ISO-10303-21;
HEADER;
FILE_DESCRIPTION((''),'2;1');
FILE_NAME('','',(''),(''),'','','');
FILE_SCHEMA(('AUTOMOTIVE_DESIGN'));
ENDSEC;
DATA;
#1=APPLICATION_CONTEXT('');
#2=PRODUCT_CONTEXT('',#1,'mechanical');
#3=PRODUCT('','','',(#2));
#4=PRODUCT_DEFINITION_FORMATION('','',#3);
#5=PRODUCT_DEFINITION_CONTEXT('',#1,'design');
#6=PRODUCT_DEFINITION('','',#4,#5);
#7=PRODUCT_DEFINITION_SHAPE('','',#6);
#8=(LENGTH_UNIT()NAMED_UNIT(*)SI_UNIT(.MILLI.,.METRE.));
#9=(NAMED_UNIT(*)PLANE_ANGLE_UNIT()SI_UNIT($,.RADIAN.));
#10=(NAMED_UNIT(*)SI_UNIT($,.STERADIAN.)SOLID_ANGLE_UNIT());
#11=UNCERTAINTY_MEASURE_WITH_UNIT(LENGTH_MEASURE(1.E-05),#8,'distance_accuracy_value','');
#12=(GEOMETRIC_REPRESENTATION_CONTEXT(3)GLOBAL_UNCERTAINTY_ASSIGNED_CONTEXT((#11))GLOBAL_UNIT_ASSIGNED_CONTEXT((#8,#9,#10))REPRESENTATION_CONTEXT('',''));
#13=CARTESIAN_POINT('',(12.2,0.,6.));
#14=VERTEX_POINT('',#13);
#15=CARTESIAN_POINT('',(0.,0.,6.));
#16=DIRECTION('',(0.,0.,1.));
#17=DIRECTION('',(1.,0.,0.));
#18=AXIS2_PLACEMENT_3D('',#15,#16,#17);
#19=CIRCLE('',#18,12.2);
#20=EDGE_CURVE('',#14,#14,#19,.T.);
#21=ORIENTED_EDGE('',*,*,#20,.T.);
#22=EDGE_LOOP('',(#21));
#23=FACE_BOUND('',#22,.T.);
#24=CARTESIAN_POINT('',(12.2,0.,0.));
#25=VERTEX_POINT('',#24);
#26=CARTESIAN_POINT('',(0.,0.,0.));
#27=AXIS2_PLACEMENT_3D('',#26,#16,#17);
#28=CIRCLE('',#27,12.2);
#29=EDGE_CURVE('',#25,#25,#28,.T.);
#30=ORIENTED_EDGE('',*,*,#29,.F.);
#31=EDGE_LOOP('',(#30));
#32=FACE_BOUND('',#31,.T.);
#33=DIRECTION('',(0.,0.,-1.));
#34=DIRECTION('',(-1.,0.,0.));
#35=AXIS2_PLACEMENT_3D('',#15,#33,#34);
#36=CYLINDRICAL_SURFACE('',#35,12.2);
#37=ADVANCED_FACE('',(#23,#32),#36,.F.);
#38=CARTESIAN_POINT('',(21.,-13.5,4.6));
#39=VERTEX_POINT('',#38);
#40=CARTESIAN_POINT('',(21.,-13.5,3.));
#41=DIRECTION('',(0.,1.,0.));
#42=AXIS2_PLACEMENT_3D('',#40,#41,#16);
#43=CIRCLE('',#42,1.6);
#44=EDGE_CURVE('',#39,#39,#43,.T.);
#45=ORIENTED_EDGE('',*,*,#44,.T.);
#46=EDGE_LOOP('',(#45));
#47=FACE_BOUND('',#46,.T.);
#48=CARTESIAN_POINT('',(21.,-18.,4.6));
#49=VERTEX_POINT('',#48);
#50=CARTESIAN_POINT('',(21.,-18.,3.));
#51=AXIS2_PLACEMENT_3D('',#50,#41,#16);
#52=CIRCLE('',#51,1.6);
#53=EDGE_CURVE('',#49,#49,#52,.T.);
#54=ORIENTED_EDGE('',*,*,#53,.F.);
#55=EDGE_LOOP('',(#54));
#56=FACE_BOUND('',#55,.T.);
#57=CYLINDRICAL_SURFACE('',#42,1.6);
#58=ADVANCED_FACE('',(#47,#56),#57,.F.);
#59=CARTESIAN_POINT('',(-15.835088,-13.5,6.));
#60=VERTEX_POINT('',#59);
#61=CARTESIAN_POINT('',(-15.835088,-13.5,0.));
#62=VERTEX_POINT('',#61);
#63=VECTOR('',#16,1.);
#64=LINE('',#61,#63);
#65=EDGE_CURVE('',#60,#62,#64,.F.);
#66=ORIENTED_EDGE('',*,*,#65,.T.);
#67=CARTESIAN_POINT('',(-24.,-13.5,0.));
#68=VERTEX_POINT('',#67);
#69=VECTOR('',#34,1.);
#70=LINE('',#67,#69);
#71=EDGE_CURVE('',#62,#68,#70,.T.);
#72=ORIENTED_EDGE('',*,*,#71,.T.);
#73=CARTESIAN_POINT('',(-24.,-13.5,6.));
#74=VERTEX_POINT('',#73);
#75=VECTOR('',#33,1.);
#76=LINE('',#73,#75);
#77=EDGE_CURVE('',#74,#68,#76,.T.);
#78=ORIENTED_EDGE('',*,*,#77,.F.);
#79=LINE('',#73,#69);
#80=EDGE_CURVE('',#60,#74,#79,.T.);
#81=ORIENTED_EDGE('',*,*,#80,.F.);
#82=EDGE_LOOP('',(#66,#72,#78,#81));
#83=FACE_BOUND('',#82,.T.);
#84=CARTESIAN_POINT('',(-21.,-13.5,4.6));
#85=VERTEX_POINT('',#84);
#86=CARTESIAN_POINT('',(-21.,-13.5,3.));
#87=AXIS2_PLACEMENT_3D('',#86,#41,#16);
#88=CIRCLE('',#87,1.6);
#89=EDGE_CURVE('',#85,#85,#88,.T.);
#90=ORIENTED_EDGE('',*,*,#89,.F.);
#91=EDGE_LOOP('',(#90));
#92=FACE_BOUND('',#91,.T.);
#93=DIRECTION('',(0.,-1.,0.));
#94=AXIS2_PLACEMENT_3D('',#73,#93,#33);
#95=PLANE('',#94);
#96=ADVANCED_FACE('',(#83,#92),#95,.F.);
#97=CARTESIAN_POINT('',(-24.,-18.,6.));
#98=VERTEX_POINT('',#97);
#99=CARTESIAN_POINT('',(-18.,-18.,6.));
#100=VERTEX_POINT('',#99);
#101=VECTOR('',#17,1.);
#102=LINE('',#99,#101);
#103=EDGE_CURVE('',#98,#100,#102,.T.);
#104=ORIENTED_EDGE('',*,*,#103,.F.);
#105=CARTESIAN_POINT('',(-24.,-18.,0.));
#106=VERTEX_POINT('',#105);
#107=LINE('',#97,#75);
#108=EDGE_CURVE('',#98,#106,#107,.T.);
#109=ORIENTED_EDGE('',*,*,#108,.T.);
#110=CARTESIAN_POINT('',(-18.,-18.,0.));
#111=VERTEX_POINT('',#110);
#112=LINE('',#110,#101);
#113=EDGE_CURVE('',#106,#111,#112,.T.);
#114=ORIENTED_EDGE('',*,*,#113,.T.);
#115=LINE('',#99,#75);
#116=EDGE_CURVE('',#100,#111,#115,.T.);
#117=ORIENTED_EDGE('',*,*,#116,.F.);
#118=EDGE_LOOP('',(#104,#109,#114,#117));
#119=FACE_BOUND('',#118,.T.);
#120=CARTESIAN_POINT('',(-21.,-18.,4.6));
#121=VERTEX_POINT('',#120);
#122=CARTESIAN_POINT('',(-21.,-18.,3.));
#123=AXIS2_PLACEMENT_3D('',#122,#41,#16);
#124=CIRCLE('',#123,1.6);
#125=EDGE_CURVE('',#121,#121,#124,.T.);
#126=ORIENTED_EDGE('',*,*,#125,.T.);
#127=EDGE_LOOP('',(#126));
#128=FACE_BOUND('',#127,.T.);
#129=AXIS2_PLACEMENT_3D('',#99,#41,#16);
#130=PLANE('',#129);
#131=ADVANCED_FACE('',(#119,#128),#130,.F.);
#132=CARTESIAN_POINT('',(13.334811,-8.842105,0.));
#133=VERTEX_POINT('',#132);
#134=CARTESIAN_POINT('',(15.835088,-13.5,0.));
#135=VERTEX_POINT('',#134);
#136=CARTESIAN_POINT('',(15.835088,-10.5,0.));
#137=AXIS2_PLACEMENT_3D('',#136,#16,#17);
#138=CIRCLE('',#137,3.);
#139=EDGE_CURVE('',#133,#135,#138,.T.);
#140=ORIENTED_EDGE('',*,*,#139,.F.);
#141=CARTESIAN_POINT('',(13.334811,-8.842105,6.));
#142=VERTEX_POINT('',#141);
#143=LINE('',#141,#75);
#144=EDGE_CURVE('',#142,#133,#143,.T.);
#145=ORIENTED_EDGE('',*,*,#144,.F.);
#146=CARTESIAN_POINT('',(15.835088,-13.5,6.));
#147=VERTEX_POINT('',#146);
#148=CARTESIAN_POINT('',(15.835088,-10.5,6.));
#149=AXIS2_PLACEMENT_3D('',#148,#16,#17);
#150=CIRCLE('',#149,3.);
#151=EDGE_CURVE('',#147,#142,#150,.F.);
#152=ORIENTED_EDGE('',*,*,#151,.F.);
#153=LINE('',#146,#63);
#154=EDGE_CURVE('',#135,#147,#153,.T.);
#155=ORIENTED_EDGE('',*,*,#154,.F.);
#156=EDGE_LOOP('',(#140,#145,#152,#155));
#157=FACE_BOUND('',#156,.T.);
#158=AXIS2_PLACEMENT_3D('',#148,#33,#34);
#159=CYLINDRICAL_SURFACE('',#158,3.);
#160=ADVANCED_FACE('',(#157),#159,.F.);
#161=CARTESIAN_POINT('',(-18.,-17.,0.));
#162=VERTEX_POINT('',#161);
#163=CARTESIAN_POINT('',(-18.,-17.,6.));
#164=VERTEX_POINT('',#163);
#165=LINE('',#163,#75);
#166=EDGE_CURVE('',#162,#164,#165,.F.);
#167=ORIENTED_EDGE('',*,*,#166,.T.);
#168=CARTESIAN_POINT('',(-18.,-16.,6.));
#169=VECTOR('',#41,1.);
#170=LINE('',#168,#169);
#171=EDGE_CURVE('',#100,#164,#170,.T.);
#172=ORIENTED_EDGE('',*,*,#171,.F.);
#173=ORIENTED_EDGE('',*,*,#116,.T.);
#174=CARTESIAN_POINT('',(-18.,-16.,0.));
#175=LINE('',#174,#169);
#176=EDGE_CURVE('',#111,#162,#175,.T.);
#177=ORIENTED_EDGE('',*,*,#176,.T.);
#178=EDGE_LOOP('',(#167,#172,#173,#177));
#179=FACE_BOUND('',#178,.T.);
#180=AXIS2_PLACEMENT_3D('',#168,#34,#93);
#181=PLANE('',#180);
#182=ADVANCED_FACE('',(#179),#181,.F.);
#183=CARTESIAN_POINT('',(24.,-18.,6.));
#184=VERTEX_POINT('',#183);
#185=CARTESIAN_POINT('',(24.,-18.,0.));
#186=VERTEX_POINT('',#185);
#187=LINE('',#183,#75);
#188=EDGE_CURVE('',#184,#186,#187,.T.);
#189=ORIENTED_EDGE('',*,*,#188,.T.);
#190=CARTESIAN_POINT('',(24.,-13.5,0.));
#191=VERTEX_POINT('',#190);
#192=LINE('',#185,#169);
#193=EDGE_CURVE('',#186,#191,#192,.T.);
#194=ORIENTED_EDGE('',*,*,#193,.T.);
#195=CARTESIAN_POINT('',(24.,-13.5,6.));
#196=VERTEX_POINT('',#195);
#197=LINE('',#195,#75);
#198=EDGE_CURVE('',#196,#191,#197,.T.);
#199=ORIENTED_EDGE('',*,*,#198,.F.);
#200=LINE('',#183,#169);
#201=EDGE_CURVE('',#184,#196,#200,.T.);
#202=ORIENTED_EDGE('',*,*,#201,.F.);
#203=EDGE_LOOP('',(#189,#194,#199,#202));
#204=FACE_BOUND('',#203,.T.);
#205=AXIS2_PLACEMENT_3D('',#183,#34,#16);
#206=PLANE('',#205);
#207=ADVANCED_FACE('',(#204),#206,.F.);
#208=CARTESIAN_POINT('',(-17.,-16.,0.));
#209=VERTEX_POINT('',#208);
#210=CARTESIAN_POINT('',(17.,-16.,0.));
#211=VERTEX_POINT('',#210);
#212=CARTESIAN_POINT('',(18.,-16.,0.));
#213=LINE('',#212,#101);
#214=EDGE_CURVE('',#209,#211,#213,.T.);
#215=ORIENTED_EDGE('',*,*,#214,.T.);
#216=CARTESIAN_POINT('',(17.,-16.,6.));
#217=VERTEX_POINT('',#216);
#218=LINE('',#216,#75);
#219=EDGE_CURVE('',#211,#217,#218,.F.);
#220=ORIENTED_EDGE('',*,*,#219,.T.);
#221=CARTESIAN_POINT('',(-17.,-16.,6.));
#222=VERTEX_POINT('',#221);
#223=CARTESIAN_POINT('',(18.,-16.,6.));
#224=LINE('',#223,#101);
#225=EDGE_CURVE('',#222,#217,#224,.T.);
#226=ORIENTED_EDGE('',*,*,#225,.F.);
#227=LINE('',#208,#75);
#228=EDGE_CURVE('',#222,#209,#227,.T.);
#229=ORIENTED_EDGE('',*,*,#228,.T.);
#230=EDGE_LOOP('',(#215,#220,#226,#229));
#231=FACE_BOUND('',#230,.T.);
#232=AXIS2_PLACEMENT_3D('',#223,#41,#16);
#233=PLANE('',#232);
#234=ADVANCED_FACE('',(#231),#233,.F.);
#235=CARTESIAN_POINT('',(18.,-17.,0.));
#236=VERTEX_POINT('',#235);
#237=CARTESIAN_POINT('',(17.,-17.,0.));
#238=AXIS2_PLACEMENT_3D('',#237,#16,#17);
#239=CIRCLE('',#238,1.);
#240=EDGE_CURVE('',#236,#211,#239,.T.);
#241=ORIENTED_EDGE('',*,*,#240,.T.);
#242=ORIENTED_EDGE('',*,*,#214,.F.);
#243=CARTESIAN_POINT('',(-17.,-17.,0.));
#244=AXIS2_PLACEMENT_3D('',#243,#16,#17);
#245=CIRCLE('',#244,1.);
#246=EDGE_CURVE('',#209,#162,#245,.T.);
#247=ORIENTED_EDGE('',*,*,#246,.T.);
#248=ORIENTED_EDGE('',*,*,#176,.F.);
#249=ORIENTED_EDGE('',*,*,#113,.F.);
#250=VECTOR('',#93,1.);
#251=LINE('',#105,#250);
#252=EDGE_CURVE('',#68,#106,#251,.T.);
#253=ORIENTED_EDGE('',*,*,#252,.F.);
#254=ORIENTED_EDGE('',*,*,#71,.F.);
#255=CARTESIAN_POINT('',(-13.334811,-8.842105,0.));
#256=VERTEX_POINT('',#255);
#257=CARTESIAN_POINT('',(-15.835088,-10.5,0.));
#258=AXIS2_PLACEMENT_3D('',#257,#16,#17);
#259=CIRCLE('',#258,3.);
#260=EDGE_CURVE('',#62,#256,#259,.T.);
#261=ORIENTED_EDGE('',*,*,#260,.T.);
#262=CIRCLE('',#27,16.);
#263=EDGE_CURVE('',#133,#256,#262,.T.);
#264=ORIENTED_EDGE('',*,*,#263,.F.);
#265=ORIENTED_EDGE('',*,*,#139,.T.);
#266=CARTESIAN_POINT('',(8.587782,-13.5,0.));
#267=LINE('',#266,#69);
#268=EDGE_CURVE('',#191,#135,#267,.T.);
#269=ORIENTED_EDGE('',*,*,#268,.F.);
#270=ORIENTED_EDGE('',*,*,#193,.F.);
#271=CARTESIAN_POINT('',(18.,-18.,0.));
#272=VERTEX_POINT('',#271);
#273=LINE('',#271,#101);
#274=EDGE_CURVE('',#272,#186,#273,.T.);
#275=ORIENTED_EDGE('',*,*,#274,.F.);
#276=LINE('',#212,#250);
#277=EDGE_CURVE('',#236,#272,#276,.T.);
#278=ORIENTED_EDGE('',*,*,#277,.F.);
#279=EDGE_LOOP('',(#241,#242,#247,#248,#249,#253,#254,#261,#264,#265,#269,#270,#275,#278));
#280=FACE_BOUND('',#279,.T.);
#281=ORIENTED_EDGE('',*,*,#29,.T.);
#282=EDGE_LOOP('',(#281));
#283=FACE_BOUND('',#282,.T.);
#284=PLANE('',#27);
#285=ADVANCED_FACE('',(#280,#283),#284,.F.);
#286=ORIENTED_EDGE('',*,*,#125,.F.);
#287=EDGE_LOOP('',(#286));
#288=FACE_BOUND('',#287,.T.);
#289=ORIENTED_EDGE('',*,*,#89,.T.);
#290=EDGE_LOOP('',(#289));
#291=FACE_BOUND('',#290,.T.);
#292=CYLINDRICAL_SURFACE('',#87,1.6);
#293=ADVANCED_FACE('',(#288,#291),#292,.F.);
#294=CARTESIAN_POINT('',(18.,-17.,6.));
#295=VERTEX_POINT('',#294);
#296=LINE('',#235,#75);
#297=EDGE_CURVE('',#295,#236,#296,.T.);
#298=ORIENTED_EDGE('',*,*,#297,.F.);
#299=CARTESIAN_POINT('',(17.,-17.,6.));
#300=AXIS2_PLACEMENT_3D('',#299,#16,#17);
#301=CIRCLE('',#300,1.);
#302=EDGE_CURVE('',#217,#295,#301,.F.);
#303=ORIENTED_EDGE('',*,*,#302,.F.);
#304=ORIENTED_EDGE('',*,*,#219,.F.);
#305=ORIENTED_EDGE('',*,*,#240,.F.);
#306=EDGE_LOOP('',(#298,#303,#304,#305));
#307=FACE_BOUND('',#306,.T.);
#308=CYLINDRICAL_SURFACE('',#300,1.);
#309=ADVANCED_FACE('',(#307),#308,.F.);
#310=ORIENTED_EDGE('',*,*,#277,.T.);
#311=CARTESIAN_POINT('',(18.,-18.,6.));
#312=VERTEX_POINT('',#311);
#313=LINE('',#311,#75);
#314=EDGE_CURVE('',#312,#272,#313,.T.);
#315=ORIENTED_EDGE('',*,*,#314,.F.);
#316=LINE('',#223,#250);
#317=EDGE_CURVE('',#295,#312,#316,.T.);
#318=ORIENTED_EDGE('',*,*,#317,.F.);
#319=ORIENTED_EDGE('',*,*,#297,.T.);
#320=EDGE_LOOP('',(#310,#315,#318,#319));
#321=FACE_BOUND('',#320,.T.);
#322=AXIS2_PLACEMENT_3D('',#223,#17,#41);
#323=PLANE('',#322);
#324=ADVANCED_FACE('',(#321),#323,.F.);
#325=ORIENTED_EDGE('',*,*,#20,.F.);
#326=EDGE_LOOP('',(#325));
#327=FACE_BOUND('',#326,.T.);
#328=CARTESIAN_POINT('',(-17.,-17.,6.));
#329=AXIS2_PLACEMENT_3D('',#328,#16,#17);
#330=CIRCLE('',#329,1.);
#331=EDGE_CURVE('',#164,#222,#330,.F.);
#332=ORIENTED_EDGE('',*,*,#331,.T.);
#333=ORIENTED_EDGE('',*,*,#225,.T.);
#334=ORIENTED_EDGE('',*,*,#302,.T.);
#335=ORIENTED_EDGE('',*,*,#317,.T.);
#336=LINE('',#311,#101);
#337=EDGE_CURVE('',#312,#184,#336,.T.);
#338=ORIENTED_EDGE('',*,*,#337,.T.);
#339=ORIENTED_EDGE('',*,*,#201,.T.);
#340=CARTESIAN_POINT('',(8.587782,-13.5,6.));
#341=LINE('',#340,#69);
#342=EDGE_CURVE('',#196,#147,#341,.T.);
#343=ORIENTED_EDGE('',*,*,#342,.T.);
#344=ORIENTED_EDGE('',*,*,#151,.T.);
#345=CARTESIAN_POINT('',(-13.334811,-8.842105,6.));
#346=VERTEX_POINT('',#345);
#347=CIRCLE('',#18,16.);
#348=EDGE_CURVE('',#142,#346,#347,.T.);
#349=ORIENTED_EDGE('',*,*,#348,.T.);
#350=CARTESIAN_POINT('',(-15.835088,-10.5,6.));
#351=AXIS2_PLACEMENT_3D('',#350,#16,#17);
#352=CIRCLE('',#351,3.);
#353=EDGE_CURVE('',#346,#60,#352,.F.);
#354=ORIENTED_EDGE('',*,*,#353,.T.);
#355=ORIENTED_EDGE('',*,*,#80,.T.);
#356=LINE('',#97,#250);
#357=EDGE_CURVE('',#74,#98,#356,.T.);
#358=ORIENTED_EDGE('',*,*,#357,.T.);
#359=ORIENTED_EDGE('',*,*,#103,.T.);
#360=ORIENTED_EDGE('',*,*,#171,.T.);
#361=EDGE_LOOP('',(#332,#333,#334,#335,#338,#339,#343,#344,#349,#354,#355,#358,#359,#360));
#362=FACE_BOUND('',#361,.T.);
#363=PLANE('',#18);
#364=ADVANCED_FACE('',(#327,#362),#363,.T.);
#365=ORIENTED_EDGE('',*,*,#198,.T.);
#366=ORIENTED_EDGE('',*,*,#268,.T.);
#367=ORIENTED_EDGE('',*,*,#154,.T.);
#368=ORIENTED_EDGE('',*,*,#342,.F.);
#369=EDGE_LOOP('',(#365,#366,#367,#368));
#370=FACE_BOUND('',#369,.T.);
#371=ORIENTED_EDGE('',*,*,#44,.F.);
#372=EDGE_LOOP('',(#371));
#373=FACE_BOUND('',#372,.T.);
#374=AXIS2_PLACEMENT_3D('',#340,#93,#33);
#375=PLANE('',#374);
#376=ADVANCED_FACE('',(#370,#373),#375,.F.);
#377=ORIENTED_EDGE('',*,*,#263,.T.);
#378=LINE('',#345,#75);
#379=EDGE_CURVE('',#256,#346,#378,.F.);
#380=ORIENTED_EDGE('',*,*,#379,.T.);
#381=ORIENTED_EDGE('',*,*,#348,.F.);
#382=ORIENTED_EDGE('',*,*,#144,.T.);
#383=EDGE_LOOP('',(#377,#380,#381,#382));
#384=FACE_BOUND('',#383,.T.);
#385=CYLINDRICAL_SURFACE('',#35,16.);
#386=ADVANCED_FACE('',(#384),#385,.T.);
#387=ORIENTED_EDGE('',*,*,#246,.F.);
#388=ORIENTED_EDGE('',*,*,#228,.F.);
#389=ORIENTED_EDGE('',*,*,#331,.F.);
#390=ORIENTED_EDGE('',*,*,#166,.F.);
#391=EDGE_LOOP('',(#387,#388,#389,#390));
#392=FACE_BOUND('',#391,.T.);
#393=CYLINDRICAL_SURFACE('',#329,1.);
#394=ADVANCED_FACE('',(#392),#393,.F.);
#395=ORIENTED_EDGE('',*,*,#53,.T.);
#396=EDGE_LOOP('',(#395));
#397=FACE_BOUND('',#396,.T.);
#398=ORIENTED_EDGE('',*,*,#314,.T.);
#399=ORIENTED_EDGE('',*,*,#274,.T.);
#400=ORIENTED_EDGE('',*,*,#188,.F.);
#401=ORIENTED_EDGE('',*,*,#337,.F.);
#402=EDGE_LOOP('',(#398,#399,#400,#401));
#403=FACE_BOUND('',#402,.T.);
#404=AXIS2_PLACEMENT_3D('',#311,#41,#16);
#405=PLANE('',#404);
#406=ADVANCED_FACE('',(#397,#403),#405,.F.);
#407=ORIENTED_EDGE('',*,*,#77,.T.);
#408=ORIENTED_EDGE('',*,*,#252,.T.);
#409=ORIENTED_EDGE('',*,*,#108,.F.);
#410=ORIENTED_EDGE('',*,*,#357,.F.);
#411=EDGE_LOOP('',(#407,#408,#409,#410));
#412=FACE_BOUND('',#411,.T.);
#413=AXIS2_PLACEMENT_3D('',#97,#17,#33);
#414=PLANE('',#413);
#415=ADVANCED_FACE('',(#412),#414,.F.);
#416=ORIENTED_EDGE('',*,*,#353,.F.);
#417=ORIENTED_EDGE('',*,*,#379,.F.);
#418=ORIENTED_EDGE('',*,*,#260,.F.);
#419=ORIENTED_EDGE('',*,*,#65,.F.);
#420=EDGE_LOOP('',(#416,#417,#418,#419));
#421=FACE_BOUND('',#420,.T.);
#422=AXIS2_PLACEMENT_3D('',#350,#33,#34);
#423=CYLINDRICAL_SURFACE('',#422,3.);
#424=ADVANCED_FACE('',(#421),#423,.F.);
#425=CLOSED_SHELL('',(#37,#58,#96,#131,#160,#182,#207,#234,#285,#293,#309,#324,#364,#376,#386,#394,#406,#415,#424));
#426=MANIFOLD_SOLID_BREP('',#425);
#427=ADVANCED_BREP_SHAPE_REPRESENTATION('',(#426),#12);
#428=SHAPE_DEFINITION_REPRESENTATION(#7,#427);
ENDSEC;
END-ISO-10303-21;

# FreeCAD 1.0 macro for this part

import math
import FreeCAD as App
import Part
import Sketcher

V = App.Vector
Q = App.Units.Quantity


def edges_at(feature, points):
    """Names of the edges that pass closest to the given points."""
    edges = feature.Shape.Edges
    near = lambda p: min(range(len(edges)), key=lambda i: edges[i].distToShape(Part.Vertex(*p))[0])
    return sorted({f"Edge{near(p) + 1}" for p in points})

doc = App.newDocument("Part")
params = doc.addObject("Spreadsheet::Sheet", "Params")
for row, (alias, value) in enumerate([
    ("sketch1_radius", "16 mm"),
    ("sketch1_diameter", "24.4 mm"),
    ("sketch1_width", "36 mm"),
    ("sketch1_width2", "6 mm"),
    ("sketch1_height", "2 mm"),
    ("pad1_length", "6 mm"),
    ("fillet_radius", "3 mm"),
    ("fillet2_radius", "1 mm"),
    ("sketch2_diameter", "3.2 mm"),
    ("hole_diameter", "3.2 mm"),
], start=1):
    params.set(f"A{row}", alias)
    params.set(f"B{row}", "=" + value)
    params.setAlias(f"B{row}", alias)

body = doc.addObject("PartDesign::Body", "Body")

# Sketch on XY plane
sketch1 = body.newObject("Sketcher::SketchObject", "Sketch")
sketch1.AttachmentSupport = (doc.getObject("XY_Plane"), [""])
sketch1.MapMode = "FlatFace"
sketch1.addGeometry(Part.LineSegment(V(-18, -16, 0), V(18, -16, 0)), False)
sketch1.addGeometry(Part.LineSegment(V(18, -16, 0), V(18, -18, 0)), False)
sketch1.addGeometry(Part.LineSegment(V(18, -18, 0), V(24, -18, 0)), False)
sketch1.addGeometry(Part.LineSegment(V(24, -18, 0), V(24, -13.5, 0)), False)
sketch1.addGeometry(Part.LineSegment(V(24, -13.5, 0), V(8.6, -13.5, 0)), False)
sketch1.addGeometry(Part.ArcOfCircle(Part.Circle(V(0, 0, 0), V(0, 0, 1), 16), math.radians(-58), math.radians(238)), False)
sketch1.addGeometry(Part.LineSegment(V(-8.6, -13.5, 0), V(-24, -13.5, 0)), False)
sketch1.addGeometry(Part.LineSegment(V(-24, -13.5, 0), V(-24, -18, 0)), False)
sketch1.addGeometry(Part.LineSegment(V(-24, -18, 0), V(-18, -18, 0)), False)
sketch1.addGeometry(Part.LineSegment(V(-18, -18, 0), V(-18, -16, 0)), False)
sketch1.addGeometry(Part.Circle(V(0, 0, 0), V(0, 0, 1), 12.2), False)
sketch1.addConstraint(Sketcher.Constraint("Coincident", 0, 2, 1, 1))
sketch1.addConstraint(Sketcher.Constraint("Coincident", 1, 2, 2, 1))
sketch1.addConstraint(Sketcher.Constraint("Coincident", 2, 2, 3, 1))
sketch1.addConstraint(Sketcher.Constraint("Coincident", 3, 2, 4, 1))
sketch1.addConstraint(Sketcher.Constraint("Coincident", 4, 2, 5, 1))
sketch1.addConstraint(Sketcher.Constraint("Coincident", 5, 2, 6, 1))
sketch1.addConstraint(Sketcher.Constraint("Coincident", 6, 2, 7, 1))
sketch1.addConstraint(Sketcher.Constraint("Coincident", 7, 2, 8, 1))
sketch1.addConstraint(Sketcher.Constraint("Coincident", 8, 2, 9, 1))
sketch1.addConstraint(Sketcher.Constraint("Coincident", 9, 2, 0, 1))
sketch1.addConstraint(Sketcher.Constraint("Horizontal", 0))
sketch1.addConstraint(Sketcher.Constraint("Vertical", 1))
sketch1.addConstraint(Sketcher.Constraint("Horizontal", 2))
sketch1.addConstraint(Sketcher.Constraint("Vertical", 3))
sketch1.addConstraint(Sketcher.Constraint("Horizontal", 4))
sketch1.addConstraint(Sketcher.Constraint("Horizontal", 6))
sketch1.addConstraint(Sketcher.Constraint("Vertical", 7))
sketch1.addConstraint(Sketcher.Constraint("Horizontal", 8))
sketch1.addConstraint(Sketcher.Constraint("Vertical", 9))
sketch1.addConstraint(Sketcher.Constraint("Coincident", 5, 3, -1, 1))
sketch1.addConstraint(Sketcher.Constraint("Coincident", 10, 3, -1, 1))
sketch1.addConstraint(Sketcher.Constraint("Symmetric", 3, 2, 6, 2, -2))
sketch1.addConstraint(Sketcher.Constraint("Symmetric", 1, 2, 8, 2, -2))
sketch1.addConstraint(Sketcher.Constraint("Radius", 5, Q("16 mm")))
sketch1.addConstraint(Sketcher.Constraint("Diameter", 10, Q("24.4 mm")))
sketch1.addConstraint(Sketcher.Constraint("DistanceX", 0, 1, 0, 2, Q("36 mm")))
sketch1.addConstraint(Sketcher.Constraint("DistanceX", 2, 1, 2, 2, Q("6 mm")))
sketch1.addConstraint(Sketcher.Constraint("DistanceY", 1, 2, 1, 1, Q("2 mm")))
sketch1.addConstraint(Sketcher.Constraint("DistanceY", 3, 1, 3, 2, Q("4.5 mm")))
sketch1.addConstraint(Sketcher.Constraint("DistanceY", 0, 2, -1, 1, Q("16 mm")))
sketch1.setExpression("Constraints[23]", "Params.sketch1_radius")
sketch1.setExpression("Constraints[24]", "Params.sketch1_diameter")
sketch1.setExpression("Constraints[25]", "Params.sketch1_width")
sketch1.setExpression("Constraints[26]", "Params.sketch1_width2")
sketch1.setExpression("Constraints[27]", "Params.sketch1_height")
pad1 = body.newObject("PartDesign::Pad", "Pad")
pad1.Profile = sketch1
pad1.setExpression("Length", "Params.pad1_length")
doc.recompute()

fillet = body.newObject("PartDesign::Fillet", "Fillet")
fillet.Base = (pad1, edges_at(pad1, [(-8.588, -13.5, 3), (8.588, -13.5, 3)]))
fillet.setExpression("Radius", "Params.fillet_radius")
doc.recompute()

fillet2 = body.newObject("PartDesign::Fillet", "Fillet001")
fillet2.Base = (fillet, edges_at(fillet, [(18, -16, 3), (-18, -16, 3)]))
fillet2.setExpression("Radius", "Params.fillet2_radius")

# Sketch on XZ plane
sketch2 = body.newObject("Sketcher::SketchObject", "Sketch001")
sketch2.AttachmentSupport = (doc.getObject("XZ_Plane"), [""])
sketch2.MapMode = "FlatFace"
sketch2.AttachmentOffset = App.Placement(V(0, 0, 13.5), App.Rotation())
sketch2.addGeometry(Part.Circle(V(-21, 3, 0), V(0, 0, 1), 1.6), False)
sketch2.addGeometry(Part.Circle(V(21, 3, 0), V(0, 0, 1), 1.6), False)
sketch2.addConstraint(Sketcher.Constraint("Equal", 0, 1))
sketch2.addConstraint(Sketcher.Constraint("Symmetric", 0, 3, 1, 3, -2))
sketch2.addConstraint(Sketcher.Constraint("Diameter", 0, Q("3.2 mm")))
sketch2.addConstraint(Sketcher.Constraint("DistanceX", 0, 3, -1, 1, Q("21 mm")))
sketch2.addConstraint(Sketcher.Constraint("DistanceY", -1, 1, 0, 3, Q("3 mm")))
sketch2.setExpression("Constraints[2]", "Params.sketch2_diameter")
doc.recompute()
hole = body.newObject("PartDesign::Hole", "Hole")
hole.Profile = sketch2
hole.ThreadType = "None"
hole.setExpression("Diameter", "Params.hole_diameter")
hole.DepthType = "ThroughAll"
hole.Reversed = True

doc.recompute()
